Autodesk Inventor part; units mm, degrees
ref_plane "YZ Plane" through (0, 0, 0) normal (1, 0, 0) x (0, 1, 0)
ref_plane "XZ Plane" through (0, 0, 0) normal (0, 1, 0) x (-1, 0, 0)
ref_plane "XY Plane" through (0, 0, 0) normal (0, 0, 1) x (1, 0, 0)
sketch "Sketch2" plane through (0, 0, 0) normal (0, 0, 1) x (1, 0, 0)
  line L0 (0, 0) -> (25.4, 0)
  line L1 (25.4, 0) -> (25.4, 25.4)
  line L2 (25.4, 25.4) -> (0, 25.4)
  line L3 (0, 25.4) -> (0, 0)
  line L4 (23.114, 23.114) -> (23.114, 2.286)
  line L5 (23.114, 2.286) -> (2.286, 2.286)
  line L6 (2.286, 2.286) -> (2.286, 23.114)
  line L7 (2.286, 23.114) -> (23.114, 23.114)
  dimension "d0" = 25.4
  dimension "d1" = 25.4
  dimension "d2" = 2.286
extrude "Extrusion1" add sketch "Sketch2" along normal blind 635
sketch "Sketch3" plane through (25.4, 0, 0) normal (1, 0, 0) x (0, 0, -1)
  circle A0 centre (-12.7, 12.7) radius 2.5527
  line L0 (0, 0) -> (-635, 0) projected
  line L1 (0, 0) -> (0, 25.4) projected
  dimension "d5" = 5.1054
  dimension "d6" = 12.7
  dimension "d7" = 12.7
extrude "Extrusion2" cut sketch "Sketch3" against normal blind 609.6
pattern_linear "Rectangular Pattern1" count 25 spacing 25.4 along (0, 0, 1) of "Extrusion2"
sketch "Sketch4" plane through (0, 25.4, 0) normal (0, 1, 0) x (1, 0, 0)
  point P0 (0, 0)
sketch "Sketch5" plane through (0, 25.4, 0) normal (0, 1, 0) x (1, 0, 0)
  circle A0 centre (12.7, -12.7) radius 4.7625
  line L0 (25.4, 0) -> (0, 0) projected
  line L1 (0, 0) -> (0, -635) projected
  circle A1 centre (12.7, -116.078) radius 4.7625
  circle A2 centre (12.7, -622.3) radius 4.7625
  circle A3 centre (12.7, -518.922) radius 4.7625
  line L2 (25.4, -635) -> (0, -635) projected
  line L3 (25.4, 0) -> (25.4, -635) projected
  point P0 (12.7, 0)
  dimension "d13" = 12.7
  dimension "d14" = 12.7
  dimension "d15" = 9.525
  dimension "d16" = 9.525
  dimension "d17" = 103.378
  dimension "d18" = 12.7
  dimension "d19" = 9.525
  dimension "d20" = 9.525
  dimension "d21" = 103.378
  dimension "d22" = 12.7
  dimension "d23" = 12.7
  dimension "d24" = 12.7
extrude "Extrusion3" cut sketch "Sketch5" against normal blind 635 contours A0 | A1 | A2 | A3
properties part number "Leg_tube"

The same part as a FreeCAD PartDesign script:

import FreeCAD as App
import Part
import Sketcher

V = App.Vector
Q = App.Units.Quantity


def add_polygon(sketch, points):
    """Adds a closed chain of lines whose ends are joined by coincident constraints."""
    first, n = sketch.GeometryCount, len(points)
    for a, b in zip(points, points[1:] + points[:1]):
        sketch.addGeometry(Part.LineSegment(App.Vector(*a, 0), App.Vector(*b, 0)), False)
    for i in range(n):
        sketch.addConstraint(Sketcher.Constraint("Coincident", first + i, 2, first + (i + 1) % n, 1))

doc = App.newDocument("Part")
params = doc.addObject("Spreadsheet::Sheet", "Params")
for row, (alias, value) in enumerate([
    ("sketch1_width", "1 in"),
    ("pad1_length", "25 in"),
    ("sketch2_diameter", "0.201 in"),
    ("pocket1_length", "24 in"),
    ("linearpattern_pitch", "1 in"),
    ("sketch3_diameter", "0.375 in"),
    ("pocket2_length", "25 in"),
], start=1):
    params.set(f"A{row}", alias)
    params.set(f"B{row}", "=" + value)
    params.setAlias(f"B{row}", alias)

body = doc.addObject("PartDesign::Body", "Body")

sketch1 = doc.addObject("Sketcher::SketchObject", "Sketch")
body.addObject(sketch1)
sketch1.AttachmentSupport = (doc.XY_Plane, [""])
sketch1.MapMode = "FlatFace"
add_polygon(sketch1, [(0, 25), (0, 0), (25, 0), (25, 25)])
add_polygon(sketch1, [(2, 23), (23, 23), (23, 2), (2, 2)])
sketch1.addConstraint(Sketcher.Constraint("Vertical", 0))
sketch1.addConstraint(Sketcher.Constraint("Horizontal", 1))
sketch1.addConstraint(Sketcher.Constraint("Vertical", 2))
sketch1.addConstraint(Sketcher.Constraint("Horizontal", 3))
sketch1.addConstraint(Sketcher.Constraint("Horizontal", 4))
sketch1.addConstraint(Sketcher.Constraint("Vertical", 5))
sketch1.addConstraint(Sketcher.Constraint("Horizontal", 6))
sketch1.addConstraint(Sketcher.Constraint("Vertical", 7))
sketch1.addConstraint(Sketcher.Constraint("Coincident", 0, 2, -1, 1))
sketch1.addConstraint(Sketcher.Constraint("Equal", 3, 0))
sketch1.addConstraint(Sketcher.Constraint("Equal", 6, 5))
sketch1.addConstraint(Sketcher.Constraint("DistanceX", 1, 1, 1, 2, Q("1 in")))
sketch1.addConstraint(Sketcher.Constraint("DistanceY", -1, 1, 5, 2, Q("0.09 in")))
sketch1.addConstraint(Sketcher.Constraint("DistanceX", -1, 1, 6, 2, Q("0.09 in")))
sketch1.addConstraint(Sketcher.Constraint("DistanceX", 4, 2, 2, 2, Q("0.09 in")))
sketch1.setExpression("Constraints[19]", "Params.sketch1_width")
pad1 = doc.addObject("PartDesign::Pad", "Pad")
body.addObject(pad1)
pad1.Profile = sketch1
pad1.setExpression("Length", "Params.pad1_length")

sketch2 = doc.addObject("Sketcher::SketchObject", "Sketch001")
body.addObject(sketch2)
sketch2.AttachmentSupport = (doc.YZ_Plane, [""])
sketch2.MapMode = "FlatFace"
sketch2.AttachmentOffset = App.Placement(V(0, 0, 1 * 25.4), App.Rotation())
sketch2.addGeometry(Part.Circle(V(12.7, 12.7, 0), V(0, 0, 1), 2.6), False)
sketch2.addConstraint(Sketcher.Constraint("Diameter", 0, Q("0.201 in")))
sketch2.addConstraint(Sketcher.Constraint("DistanceX", -1, 1, 0, 3, Q("0.5 in")))
sketch2.addConstraint(Sketcher.Constraint("DistanceY", -1, 1, 0, 3, Q("0.5 in")))
sketch2.setExpression("Constraints[0]", "Params.sketch2_diameter")
pocket1 = doc.addObject("PartDesign::Pocket", "Pocket")
body.addObject(pocket1)
pocket1.Profile = sketch2
pocket1.setExpression("Length", "Params.pocket1_length")
doc.recompute()

linearpattern = doc.addObject("PartDesign::LinearPattern", "LinearPattern")
body.addObject(linearpattern)
linearpattern.Originals = [pocket1]
linearpattern.Direction = (doc.Z_Axis, [""])
linearpattern.Mode = "offset"
linearpattern.setExpression("Offset", "Params.linearpattern_pitch")
linearpattern.Occurrences = 25
body.Tip = linearpattern

sketch3 = doc.addObject("Sketcher::SketchObject", "Sketch002")
body.addObject(sketch3)
sketch3.AttachmentSupport = (doc.XZ_Plane, [""])
sketch3.MapMode = "FlatFace"
sketch3.AttachmentOffset = App.Placement(V(0, 0, -1 * 25.4), App.Rotation())
sketch3.addGeometry(Part.Circle(V(12.7, 12.7, 0), V(0, 0, 1), 4.8), False)
sketch3.addGeometry(Part.Circle(V(12.7, 116.1, 0), V(0, 0, 1), 4.8), False)
sketch3.addGeometry(Part.Circle(V(12.7, 622.3, 0), V(0, 0, 1), 4.8), False)
sketch3.addGeometry(Part.Circle(V(12.7, 518.9, 0), V(0, 0, 1), 4.8), False)
sketch3.addConstraint(Sketcher.Constraint("Equal", 0, 1))
sketch3.addConstraint(Sketcher.Constraint("Equal", 1, 2))
sketch3.addConstraint(Sketcher.Constraint("Equal", 2, 3))
sketch3.addConstraint(Sketcher.Constraint("Vertical", 0, 3, 1, 3))
sketch3.addConstraint(Sketcher.Constraint("Vertical", 1, 3, 2, 3))
sketch3.addConstraint(Sketcher.Constraint("Vertical", 2, 3, 3, 3))
sketch3.addConstraint(Sketcher.Constraint("Diameter", 0, Q("0.375 in")))
sketch3.addConstraint(Sketcher.Constraint("DistanceX", -1, 1, 0, 3, Q("0.5 in")))
sketch3.addConstraint(Sketcher.Constraint("DistanceY", -1, 1, 0, 3, Q("0.5 in")))
sketch3.addConstraint(Sketcher.Constraint("DistanceY", 0, 3, 1, 3, Q("4.07 in")))
sketch3.addConstraint(Sketcher.Constraint("DistanceY", 3, 3, 2, 3, Q("4.07 in")))
sketch3.addConstraint(Sketcher.Constraint("DistanceY", 0, 3, 2, 3, Q("24 in")))
sketch3.setExpression("Constraints[6]", "Params.sketch3_diameter")
pocket2 = doc.addObject("PartDesign::Pocket", "Pocket001")
body.addObject(pocket2)
pocket2.Profile = sketch3
pocket2.setExpression("Length", "Params.pocket2_length")
pocket2.Reversed = True

doc.recompute()
